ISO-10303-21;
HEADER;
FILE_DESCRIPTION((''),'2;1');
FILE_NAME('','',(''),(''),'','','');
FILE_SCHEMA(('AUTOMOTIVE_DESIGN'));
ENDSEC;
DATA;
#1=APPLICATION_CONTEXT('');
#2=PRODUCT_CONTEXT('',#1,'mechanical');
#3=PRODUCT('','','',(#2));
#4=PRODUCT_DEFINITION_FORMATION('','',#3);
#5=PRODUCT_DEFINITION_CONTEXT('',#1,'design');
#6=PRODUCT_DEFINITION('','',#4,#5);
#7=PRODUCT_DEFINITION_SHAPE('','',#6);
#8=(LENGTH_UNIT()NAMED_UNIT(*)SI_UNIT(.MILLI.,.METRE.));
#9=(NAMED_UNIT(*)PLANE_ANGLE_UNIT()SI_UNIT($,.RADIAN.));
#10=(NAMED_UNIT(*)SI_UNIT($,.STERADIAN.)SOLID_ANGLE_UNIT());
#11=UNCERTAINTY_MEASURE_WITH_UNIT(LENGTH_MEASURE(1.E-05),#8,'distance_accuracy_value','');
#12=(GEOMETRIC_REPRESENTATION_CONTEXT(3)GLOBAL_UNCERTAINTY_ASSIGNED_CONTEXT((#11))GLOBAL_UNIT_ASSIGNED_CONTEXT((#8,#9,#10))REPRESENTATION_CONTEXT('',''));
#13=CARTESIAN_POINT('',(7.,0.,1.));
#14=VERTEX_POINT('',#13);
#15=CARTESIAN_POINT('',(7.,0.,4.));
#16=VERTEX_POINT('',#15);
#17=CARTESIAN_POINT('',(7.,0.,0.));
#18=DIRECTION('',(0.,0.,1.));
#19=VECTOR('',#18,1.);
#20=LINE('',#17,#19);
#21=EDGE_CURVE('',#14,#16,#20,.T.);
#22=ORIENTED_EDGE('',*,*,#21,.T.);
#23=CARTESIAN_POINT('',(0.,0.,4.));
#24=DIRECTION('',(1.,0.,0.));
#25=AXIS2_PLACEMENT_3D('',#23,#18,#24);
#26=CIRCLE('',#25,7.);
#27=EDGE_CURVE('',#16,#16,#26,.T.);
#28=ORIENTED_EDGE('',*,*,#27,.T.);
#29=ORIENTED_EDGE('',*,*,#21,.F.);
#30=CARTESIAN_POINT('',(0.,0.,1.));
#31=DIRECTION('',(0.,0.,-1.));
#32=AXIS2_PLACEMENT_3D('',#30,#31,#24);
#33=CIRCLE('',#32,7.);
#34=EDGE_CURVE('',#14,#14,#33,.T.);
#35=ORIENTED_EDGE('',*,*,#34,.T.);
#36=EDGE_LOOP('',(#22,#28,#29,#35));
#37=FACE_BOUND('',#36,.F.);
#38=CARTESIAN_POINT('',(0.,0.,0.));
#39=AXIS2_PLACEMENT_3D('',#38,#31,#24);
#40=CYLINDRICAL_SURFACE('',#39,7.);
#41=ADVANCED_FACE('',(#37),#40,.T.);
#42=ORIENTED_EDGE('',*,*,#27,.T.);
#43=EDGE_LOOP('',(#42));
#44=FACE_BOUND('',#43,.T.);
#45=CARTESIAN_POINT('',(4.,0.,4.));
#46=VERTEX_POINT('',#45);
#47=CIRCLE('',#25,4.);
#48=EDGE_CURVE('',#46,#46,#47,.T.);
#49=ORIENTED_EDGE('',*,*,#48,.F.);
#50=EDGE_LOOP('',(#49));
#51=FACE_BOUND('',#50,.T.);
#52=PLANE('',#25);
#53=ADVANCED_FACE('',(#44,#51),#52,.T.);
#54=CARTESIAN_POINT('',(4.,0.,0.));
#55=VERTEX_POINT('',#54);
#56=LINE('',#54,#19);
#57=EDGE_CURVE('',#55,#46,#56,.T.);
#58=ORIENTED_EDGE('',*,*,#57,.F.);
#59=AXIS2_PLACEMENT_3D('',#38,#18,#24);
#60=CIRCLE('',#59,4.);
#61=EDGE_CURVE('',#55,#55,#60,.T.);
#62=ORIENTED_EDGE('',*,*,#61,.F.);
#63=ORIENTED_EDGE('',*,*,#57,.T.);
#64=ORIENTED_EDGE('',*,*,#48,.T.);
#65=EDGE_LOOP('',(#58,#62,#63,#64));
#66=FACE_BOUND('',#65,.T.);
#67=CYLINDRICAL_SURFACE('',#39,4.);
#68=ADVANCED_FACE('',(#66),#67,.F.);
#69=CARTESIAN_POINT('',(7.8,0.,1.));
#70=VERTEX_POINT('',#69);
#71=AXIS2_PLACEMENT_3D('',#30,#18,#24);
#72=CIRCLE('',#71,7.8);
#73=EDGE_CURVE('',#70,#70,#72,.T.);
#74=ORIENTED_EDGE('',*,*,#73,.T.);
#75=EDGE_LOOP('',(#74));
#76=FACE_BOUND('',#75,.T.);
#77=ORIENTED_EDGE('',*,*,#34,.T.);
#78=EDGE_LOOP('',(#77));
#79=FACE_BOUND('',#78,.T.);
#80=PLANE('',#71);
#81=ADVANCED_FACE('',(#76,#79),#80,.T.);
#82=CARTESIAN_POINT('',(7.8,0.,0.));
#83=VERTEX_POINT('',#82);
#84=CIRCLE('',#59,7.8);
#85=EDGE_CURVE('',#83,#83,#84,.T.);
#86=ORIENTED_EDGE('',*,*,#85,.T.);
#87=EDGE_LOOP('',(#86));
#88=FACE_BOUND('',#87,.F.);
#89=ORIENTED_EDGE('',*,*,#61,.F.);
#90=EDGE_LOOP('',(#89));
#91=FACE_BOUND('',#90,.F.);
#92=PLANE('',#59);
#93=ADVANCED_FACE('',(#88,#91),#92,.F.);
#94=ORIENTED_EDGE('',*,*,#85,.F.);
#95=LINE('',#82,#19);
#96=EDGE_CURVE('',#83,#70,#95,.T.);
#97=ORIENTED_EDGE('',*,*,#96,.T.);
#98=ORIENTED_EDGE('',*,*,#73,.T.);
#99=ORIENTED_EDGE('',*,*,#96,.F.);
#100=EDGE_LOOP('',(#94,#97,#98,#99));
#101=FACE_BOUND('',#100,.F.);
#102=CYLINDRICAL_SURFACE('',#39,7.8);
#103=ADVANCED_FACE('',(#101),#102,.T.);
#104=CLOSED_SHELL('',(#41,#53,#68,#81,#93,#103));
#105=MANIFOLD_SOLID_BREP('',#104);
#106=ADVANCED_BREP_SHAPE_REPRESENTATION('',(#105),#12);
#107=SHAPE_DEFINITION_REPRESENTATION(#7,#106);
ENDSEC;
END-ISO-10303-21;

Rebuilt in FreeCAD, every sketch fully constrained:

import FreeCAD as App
import Part
import Sketcher
from FreeCAD import Vector
Q = App.Units.Quantity

doc = App.newDocument("Part")
body = doc.addObject("PartDesign::Body", "Body")

# Sketch on XY plane
sketch1 = body.newObject("Sketcher::SketchObject", "Sketch")
sketch1.AttachmentSupport = (doc.getObject("XY_Plane"), [""])
sketch1.MapMode = "FlatFace"
sketch1.addGeometry(Part.Circle(Vector(0, 0, 0), Vector(0, 0, 1), 7), False)
sketch1.addGeometry(Part.Circle(Vector(0, 0, 0), Vector(0, 0, 1), 4), False)
sketch1.addConstraint(Sketcher.Constraint("Coincident", 0, 3, -1, 1))
sketch1.addConstraint(Sketcher.Constraint("Coincident", 1, 3, -1, 1))
sketch1.addConstraint(Sketcher.Constraint("Diameter", 0, Q("14 mm")))
sketch1.addConstraint(Sketcher.Constraint("Diameter", 1, Q("8 mm")))
pad1 = body.newObject("PartDesign::Pad", "Pad")
pad1.Profile = sketch1
pad1.Length = 4

# Sketch on XY plane
sketch2 = body.newObject("Sketcher::SketchObject", "Sketch001")
sketch2.AttachmentSupport = (doc.getObject("XY_Plane"), [""])
sketch2.MapMode = "FlatFace"
sketch2.addGeometry(Part.Circle(Vector(0, 0, 0), Vector(0, 0, 1), 7.8), False)
sketch2.addGeometry(Part.Circle(Vector(0, 0, 0), Vector(0, 0, 1), 4), False)
sketch2.addConstraint(Sketcher.Constraint("Coincident", 0, 3, -1, 1))
sketch2.addConstraint(Sketcher.Constraint("Coincident", 1, 3, -1, 1))
sketch2.addConstraint(Sketcher.Constraint("Diameter", 1, Q("8 mm")))
sketch2.addConstraint(Sketcher.Constraint("Diameter", 0, Q("15.6 mm")))
pad2 = body.newObject("PartDesign::Pad", "Pad001")
pad2.Profile = sketch2
pad2.Length = 1

doc.recompute()
